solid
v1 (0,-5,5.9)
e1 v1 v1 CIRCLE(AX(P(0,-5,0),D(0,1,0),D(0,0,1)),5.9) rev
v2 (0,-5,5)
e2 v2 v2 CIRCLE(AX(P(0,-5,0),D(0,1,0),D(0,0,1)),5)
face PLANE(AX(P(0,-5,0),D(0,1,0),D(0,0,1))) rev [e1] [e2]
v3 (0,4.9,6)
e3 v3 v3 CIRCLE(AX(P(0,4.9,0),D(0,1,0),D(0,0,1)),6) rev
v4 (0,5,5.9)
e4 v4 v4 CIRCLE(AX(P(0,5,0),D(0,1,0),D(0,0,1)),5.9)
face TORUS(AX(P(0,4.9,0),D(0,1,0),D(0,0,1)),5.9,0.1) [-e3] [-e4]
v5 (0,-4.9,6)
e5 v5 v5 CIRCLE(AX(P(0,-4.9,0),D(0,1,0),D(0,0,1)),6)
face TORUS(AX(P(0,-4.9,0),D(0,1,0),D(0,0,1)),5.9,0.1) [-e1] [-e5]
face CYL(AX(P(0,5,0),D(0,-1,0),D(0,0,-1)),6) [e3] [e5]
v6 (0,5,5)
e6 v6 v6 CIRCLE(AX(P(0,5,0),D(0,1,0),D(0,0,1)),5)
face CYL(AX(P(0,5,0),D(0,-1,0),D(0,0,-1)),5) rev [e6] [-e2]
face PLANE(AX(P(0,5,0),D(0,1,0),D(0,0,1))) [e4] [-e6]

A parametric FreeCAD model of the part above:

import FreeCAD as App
import Part
import Sketcher

V = App.Vector


def edges_at(feature, points):
    """Names of the edges that pass closest to the given points."""
    edges = feature.Shape.Edges
    near = lambda p: min(range(len(edges)), key=lambda i: edges[i].distToShape(Part.Vertex(*p))[0])
    return sorted({f"Edge{near(p) + 1}" for p in points})

doc = App.newDocument("Part")
body = doc.addObject("PartDesign::Body", "Body")

# Sketch on XZ plane
sketch1 = doc.addObject("Sketcher::SketchObject", "Sketch")
body.addObject(sketch1)
sketch1.AttachmentSupport = (doc.XZ_Plane, [""])
sketch1.MapMode = "FlatFace"
sketch1.addGeometry(Part.Circle(V(0, 0, 0), V(0, 0, 1), 6), False)
sketch1.addGeometry(Part.Circle(V(0, 0, 0), V(0, 0, 1), 5), False)
sketch1.addConstraint(Sketcher.Constraint("Coincident", 0, 3, -1, 1))
sketch1.addConstraint(Sketcher.Constraint("Coincident", 1, 3, -1, 1))
sketch1.addConstraint(Sketcher.Constraint("Diameter", 0, 12.0))
sketch1.addConstraint(Sketcher.Constraint("Diameter", 1, 10.0))
pad1 = doc.addObject("PartDesign::Pad", "Pad")
body.addObject(pad1)
pad1.Profile = sketch1
pad1.Length = 10
pad1.Midplane = True
doc.recompute()

fillet = doc.addObject("PartDesign::Fillet", "Fillet")
body.addObject(fillet)
fillet.Base = (pad1, edges_at(pad1, [(0, -5, -6), (0, 5, -6)]))
fillet.Radius = 0.1

doc.recompute()
